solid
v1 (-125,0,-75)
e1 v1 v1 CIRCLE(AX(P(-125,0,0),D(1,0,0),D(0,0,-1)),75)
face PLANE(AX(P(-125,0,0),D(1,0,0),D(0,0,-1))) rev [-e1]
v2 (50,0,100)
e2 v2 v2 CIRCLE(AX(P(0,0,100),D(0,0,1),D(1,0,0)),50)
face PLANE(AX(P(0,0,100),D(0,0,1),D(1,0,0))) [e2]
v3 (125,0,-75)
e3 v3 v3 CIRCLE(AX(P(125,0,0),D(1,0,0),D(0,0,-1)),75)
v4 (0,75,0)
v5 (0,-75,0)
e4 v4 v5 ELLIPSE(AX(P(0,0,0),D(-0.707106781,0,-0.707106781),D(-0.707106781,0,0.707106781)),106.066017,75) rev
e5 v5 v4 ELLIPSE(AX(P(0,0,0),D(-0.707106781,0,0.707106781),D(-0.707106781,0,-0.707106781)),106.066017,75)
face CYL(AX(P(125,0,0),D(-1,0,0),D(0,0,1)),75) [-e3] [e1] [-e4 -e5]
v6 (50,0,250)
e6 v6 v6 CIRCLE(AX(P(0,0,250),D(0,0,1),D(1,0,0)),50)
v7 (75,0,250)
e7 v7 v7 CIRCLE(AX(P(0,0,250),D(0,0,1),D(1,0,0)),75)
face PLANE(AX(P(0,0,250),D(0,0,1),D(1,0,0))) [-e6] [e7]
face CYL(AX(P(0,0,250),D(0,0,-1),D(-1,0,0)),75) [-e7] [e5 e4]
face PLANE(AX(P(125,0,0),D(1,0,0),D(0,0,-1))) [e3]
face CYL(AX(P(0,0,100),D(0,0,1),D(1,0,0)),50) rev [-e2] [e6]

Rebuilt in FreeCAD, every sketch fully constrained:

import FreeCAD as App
import Part
import Sketcher
from FreeCAD import Vector

doc = App.newDocument("Part")
body = doc.addObject("PartDesign::Body", "Body")

# Sketch on YZ plane
sketch1 = body.newObject("Sketcher::SketchObject", "Sketch")
sketch1.AttachmentSupport = (doc.getObject("YZ_Plane"), [""])
sketch1.MapMode = "FlatFace"
sketch1.addGeometry(Part.Circle(Vector(0, 0, 0), Vector(0, 0, 1), 75), False)
sketch1.addConstraint([
    Sketcher.Constraint("Coincident", 0, 3, -1, 1),
    Sketcher.Constraint("Diameter", 0, 150.0),
])
pad1 = body.newObject("PartDesign::Pad", "Pad")
pad1.Profile = sketch1
pad1.Length = 250
pad1.Midplane = True

# Sketch on XY plane
sketch2 = body.newObject("Sketcher::SketchObject", "Sketch001")
sketch2.AttachmentSupport = (doc.getObject("XY_Plane"), [""])
sketch2.MapMode = "FlatFace"
sketch2.addGeometry(Part.Circle(Vector(0, 0, 0), Vector(0, 0, 1), 75), False)
sketch2.addConstraint([
    Sketcher.Constraint("Coincident", 0, 3, -1, 1),
    Sketcher.Constraint("Diameter", 0, 150.0),
])
pad2 = body.newObject("PartDesign::Pad", "Pad001")
pad2.Profile = sketch2
pad2.Length = 250

# Sketch on XY plane
sketch3 = body.newObject("Sketcher::SketchObject", "Sketch002")
sketch3.AttachmentSupport = (doc.getObject("XY_Plane"), [""])
sketch3.MapMode = "FlatFace"
sketch3.AttachmentOffset = App.Placement(Vector(0, 0, 250), App.Rotation())
sketch3.addGeometry(Part.Circle(Vector(0, 0, 0), Vector(0, 0, 1), 50), False)
sketch3.addConstraint([
    Sketcher.Constraint("Coincident", 0, 3, -1, 1),
    Sketcher.Constraint("Diameter", 0, 100.0),
])
pocket1 = body.newObject("PartDesign::Pocket", "Pocket")
pocket1.Profile = sketch3
pocket1.Length = 150

doc.recompute()
